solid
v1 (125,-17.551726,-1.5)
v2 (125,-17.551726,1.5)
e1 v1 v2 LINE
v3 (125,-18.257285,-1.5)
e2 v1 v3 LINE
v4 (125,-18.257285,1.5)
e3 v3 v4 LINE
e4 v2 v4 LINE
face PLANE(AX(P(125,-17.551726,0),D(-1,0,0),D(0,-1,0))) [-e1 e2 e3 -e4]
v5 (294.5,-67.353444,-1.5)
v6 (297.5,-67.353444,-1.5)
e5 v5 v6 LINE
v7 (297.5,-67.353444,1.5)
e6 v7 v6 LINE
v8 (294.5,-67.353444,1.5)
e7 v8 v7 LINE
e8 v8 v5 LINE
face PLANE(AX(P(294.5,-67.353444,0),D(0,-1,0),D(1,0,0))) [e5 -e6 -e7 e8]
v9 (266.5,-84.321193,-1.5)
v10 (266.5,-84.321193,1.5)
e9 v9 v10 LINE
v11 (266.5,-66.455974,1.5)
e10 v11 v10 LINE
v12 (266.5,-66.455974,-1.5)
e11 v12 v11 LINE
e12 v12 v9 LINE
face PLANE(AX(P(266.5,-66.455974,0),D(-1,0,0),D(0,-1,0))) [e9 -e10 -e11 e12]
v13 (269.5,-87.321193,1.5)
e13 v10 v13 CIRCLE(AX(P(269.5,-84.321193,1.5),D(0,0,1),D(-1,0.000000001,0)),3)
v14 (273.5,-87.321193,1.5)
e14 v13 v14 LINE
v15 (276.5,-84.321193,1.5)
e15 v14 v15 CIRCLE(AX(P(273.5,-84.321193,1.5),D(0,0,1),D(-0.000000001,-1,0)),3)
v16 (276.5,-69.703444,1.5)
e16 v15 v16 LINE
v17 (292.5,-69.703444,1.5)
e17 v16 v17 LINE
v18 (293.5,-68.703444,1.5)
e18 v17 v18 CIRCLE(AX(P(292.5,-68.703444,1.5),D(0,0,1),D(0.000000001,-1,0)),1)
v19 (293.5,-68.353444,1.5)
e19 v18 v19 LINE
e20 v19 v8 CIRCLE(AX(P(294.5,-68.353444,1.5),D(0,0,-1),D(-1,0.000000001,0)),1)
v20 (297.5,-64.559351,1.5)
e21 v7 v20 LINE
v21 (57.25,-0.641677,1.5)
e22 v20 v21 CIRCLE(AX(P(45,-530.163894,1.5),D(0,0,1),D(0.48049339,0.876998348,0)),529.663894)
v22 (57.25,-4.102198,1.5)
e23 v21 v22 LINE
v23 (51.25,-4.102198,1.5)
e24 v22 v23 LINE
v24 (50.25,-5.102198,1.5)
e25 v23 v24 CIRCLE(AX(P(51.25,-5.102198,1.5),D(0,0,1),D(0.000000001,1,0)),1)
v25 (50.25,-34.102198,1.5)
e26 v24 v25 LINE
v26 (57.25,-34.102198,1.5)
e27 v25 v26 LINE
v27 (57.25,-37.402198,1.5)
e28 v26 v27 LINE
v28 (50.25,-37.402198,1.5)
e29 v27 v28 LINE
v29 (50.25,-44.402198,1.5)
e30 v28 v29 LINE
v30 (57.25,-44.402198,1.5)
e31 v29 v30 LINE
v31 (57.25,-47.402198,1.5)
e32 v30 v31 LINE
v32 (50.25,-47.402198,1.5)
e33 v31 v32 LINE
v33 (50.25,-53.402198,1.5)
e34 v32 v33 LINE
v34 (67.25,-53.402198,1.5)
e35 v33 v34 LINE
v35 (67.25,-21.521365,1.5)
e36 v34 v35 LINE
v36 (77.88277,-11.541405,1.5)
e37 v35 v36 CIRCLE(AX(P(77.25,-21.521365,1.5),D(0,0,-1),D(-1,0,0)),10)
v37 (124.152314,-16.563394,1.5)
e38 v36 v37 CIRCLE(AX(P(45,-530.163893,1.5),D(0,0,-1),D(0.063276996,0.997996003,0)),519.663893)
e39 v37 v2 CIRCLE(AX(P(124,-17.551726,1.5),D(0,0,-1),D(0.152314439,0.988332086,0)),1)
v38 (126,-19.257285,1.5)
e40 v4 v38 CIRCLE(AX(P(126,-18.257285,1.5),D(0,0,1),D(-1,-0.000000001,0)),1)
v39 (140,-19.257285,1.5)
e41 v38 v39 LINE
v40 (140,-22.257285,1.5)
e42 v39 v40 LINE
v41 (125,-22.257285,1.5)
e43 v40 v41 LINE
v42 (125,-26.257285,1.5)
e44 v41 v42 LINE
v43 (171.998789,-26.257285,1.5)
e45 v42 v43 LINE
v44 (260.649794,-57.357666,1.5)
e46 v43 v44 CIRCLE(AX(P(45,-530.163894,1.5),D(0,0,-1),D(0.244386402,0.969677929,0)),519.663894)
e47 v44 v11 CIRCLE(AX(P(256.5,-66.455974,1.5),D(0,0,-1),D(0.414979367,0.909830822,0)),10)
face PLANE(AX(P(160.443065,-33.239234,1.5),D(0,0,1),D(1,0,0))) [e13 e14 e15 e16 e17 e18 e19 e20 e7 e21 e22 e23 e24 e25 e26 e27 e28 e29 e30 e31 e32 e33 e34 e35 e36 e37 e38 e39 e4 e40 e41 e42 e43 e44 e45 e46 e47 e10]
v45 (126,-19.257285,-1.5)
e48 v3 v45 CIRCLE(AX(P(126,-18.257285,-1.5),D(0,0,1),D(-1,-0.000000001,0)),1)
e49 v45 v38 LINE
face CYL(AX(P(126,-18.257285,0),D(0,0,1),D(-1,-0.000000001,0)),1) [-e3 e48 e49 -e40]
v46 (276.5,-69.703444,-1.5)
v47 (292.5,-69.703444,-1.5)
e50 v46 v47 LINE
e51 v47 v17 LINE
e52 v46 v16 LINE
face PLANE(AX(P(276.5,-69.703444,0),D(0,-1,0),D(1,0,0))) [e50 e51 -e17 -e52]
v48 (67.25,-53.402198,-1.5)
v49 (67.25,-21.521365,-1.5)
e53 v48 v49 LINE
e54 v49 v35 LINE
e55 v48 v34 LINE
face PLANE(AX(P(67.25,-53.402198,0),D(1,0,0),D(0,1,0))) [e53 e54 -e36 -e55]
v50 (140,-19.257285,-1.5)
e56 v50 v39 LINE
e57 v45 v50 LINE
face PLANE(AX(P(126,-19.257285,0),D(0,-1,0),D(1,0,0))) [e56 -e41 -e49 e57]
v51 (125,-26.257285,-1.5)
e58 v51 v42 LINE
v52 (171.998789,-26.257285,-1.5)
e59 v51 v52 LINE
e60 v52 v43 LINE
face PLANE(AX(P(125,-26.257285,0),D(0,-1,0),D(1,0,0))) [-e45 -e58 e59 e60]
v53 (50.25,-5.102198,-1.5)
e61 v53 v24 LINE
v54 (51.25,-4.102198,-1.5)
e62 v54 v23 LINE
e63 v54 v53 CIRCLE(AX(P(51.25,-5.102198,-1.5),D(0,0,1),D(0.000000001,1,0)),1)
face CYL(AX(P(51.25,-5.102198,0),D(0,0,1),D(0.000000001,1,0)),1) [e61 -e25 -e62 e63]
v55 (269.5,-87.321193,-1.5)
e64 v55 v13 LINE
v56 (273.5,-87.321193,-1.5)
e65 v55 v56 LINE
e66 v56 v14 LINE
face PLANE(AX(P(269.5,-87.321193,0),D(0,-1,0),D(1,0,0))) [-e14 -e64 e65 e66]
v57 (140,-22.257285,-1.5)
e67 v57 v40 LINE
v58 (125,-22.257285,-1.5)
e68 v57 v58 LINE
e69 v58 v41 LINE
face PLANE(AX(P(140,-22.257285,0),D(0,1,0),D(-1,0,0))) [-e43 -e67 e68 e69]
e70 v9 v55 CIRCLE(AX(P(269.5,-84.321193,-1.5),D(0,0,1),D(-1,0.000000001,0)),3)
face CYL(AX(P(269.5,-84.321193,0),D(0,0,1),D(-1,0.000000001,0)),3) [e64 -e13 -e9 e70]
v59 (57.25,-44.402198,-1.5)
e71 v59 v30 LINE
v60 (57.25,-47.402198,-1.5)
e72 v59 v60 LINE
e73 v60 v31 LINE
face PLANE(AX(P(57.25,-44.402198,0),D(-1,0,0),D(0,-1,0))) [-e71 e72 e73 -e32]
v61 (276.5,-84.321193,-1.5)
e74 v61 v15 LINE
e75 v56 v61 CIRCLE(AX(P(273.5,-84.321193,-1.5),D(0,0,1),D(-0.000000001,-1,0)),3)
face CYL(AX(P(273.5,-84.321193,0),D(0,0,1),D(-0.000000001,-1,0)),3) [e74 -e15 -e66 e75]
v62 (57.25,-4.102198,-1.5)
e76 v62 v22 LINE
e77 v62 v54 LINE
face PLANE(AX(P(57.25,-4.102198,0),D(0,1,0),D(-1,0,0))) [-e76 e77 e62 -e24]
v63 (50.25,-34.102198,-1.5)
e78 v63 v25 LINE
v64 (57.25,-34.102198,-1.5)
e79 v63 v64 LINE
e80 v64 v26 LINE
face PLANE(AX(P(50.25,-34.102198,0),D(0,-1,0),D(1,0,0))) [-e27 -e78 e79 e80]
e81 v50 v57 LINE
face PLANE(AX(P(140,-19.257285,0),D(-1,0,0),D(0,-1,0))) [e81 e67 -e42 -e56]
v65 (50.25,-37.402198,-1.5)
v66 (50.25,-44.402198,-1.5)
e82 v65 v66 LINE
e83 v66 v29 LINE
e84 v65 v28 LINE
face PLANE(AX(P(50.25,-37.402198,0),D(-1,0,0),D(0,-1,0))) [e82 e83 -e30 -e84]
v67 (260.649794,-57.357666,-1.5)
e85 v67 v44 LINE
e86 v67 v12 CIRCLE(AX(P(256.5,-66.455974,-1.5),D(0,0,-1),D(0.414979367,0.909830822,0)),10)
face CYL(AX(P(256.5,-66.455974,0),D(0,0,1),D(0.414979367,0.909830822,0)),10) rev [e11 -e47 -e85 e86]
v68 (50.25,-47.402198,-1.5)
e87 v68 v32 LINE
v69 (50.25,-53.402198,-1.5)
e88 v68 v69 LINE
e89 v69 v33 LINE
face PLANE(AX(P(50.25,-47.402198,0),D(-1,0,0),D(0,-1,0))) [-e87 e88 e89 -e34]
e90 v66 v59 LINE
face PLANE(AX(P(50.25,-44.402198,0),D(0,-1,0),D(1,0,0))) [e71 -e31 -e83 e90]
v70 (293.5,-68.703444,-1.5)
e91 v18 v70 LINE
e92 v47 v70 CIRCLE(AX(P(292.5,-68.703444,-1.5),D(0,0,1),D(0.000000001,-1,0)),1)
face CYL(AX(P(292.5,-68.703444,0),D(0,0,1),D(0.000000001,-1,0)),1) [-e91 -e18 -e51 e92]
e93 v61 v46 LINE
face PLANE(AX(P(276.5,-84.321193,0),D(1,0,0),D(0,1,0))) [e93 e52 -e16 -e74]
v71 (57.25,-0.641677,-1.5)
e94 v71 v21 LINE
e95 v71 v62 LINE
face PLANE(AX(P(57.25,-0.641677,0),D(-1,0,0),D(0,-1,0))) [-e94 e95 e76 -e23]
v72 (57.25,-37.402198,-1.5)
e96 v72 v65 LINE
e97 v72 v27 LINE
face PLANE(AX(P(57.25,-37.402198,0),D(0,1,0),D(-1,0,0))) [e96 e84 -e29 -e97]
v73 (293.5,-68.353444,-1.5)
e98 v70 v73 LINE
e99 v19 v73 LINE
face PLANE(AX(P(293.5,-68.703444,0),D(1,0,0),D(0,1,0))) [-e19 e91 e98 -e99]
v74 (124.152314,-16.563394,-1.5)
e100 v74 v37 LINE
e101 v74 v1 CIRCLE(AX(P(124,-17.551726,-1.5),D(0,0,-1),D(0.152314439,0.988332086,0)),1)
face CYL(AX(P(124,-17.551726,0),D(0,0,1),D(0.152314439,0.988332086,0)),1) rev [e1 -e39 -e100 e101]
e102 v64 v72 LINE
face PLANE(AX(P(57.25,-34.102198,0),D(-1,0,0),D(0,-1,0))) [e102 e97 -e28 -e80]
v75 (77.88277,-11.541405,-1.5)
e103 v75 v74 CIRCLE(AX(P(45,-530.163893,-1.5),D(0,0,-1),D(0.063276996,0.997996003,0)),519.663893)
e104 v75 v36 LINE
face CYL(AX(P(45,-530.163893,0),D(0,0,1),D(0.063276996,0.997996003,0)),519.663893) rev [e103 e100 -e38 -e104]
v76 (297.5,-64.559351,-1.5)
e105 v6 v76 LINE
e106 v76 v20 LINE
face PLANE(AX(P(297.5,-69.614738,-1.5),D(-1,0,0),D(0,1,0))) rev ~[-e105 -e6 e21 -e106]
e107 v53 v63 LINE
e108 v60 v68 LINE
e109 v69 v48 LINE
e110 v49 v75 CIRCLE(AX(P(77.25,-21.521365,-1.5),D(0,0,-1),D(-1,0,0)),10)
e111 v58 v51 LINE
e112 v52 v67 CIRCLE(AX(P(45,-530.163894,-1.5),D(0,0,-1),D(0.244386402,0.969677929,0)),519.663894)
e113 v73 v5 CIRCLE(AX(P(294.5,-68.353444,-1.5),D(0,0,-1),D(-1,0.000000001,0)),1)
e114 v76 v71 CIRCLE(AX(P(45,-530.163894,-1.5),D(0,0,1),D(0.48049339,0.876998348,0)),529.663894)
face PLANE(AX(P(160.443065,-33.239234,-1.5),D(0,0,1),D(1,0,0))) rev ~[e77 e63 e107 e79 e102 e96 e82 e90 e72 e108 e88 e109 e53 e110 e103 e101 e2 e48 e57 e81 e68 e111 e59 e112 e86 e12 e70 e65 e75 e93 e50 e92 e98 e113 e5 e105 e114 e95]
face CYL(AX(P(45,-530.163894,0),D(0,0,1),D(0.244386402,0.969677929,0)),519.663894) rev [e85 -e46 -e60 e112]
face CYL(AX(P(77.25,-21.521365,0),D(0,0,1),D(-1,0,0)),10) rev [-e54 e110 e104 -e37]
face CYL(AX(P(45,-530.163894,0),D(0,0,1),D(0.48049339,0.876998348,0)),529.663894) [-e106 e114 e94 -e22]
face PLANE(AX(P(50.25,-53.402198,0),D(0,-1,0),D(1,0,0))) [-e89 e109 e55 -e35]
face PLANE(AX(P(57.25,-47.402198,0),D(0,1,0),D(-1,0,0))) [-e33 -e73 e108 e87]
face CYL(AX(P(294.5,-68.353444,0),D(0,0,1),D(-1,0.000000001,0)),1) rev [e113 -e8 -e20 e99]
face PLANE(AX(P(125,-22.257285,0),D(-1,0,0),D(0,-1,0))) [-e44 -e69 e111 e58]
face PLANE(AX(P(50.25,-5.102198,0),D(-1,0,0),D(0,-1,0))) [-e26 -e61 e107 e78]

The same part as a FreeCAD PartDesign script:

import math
import FreeCAD as App
import Part
import Sketcher

V = App.Vector

doc = App.newDocument("Part")
body = doc.addObject("PartDesign::Body", "Body")

# Sketch on XY plane
sketch1 = body.newObject("Sketcher::SketchObject", "Sketch")
sketch1.AttachmentSupport = (doc.getObject("XY_Plane"), [""])
sketch1.MapMode = "FlatFace"
sketch1.addGeometry([
    Part.LineSegment(V(294.5, -67.353444, 0), V(299.5, -67.353444, 0)),  # 0
    Part.LineSegment(V(299.5, -67.353444, 0), V(299.5, -65.649534, 0)),  # 1
    Part.ArcOfCircle(Part.Circle(V(45, -530.163894, 0), V(0, 0, 1), 529.663894), math.radians(61.282369), math.radians(88.674752)),  # 2
    Part.LineSegment(V(57.25, -0.641677, 0), V(57.25, -4.102198, 0)),  # 3
    Part.LineSegment(V(57.25, -4.102198, 0), V(51.25, -4.102198, 0)),  # 4
    Part.ArcOfCircle(Part.Circle(V(51.25, -5.102198, 0), V(0, 0, 1), 1), math.radians(90), math.radians(180)),  # 5
    Part.LineSegment(V(50.25, -5.102198, 0), V(50.25, -34.102198, 0)),  # 6
    Part.LineSegment(V(50.25, -34.102198, 0), V(57.25, -34.102198, 0)),  # 7
    Part.LineSegment(V(57.25, -34.102198, 0), V(57.25, -37.402198, 0)),  # 8
    Part.LineSegment(V(57.25, -37.402198, 0), V(50.25, -37.402198, 0)),  # 9
    Part.LineSegment(V(50.25, -37.402198, 0), V(50.25, -44.402198, 0)),  # 10
    Part.LineSegment(V(50.25, -44.402198, 0), V(57.25, -44.402198, 0)),  # 11
    Part.LineSegment(V(57.25, -44.402198, 0), V(57.25, -47.402198, 0)),  # 12
    Part.LineSegment(V(57.25, -47.402198, 0), V(50.25, -47.402198, 0)),  # 13
    Part.LineSegment(V(50.25, -47.402198, 0), V(50.25, -53.402198, 0)),  # 14
    Part.LineSegment(V(50.25, -53.402198, 0), V(67.25, -53.402198, 0)),  # 15
    Part.LineSegment(V(67.25, -53.402198, 0), V(67.25, -21.521365, 0)),  # 16
    Part.ArcOfCircle(Part.Circle(V(77.25, -21.521365, 0), V(0, 0, 1), 10), math.radians(86.372071), math.radians(180)),  # 17
    Part.ArcOfCircle(Part.Circle(V(45, -530.163893, 0), V(0, 0, 1), 519.663893), math.radians(81.238924), math.radians(86.372071)),  # 18
    Part.ArcOfCircle(Part.Circle(V(124, -17.551726, 0), V(0, 0, 1), 1), math.radians(0), math.radians(81.238924)),  # 19
    Part.LineSegment(V(125, -17.551726, 0), V(125, -18.257285, 0)),  # 20
    Part.ArcOfCircle(Part.Circle(V(126, -18.257285, 0), V(0, 0, 1), 1), math.radians(-180), math.radians(-90)),  # 21
    Part.LineSegment(V(126, -19.257285, 0), V(140, -19.257285, 0)),  # 22
    Part.LineSegment(V(140, -19.257285, 0), V(140, -22.257285, 0)),  # 23
    Part.LineSegment(V(140, -22.257285, 0), V(125, -22.257285, 0)),  # 24
    Part.LineSegment(V(125, -22.257285, 0), V(125, -26.257285, 0)),  # 25
    Part.LineSegment(V(125, -26.257285, 0), V(171.998789, -26.257285, 0)),  # 26
    Part.ArcOfCircle(Part.Circle(V(45, -530.163894, 0), V(0, 0, 1), 519.663894), math.radians(65.481983), math.radians(75.854425)),  # 27
    Part.ArcOfCircle(Part.Circle(V(256.5, -66.455974, 0), V(0, 0, 1), 10), math.radians(0), math.radians(65.481983)),  # 28
    Part.LineSegment(V(266.5, -66.455974, 0), V(266.5, -84.321193, 0)),  # 29
    Part.ArcOfCircle(Part.Circle(V(269.5, -84.321193, 0), V(0, 0, 1), 3), math.radians(180), math.radians(270)),  # 30
    Part.LineSegment(V(269.5, -87.321193, 0), V(273.5, -87.321193, 0)),  # 31
    Part.ArcOfCircle(Part.Circle(V(273.5, -84.321193, 0), V(0, 0, 1), 3), math.radians(-90), math.radians(0)),  # 32
    Part.LineSegment(V(276.5, -84.321193, 0), V(276.5, -69.703444, 0)),  # 33
    Part.LineSegment(V(276.5, -69.703444, 0), V(292.5, -69.703444, 0)),  # 34
    Part.ArcOfCircle(Part.Circle(V(292.5, -68.703444, 0), V(0, 0, 1), 1), math.radians(-90), math.radians(0)),  # 35
    Part.LineSegment(V(293.5, -68.703444, 0), V(293.5, -68.353444, 0)),  # 36
    Part.ArcOfCircle(Part.Circle(V(294.5, -68.353444, 0), V(0, 0, 1), 1), math.radians(90), math.radians(180)),  # 37
], False)
sketch1.addConstraint([
    Sketcher.Constraint("Coincident", 0, 2, 1, 1),
    Sketcher.Constraint("Coincident", 1, 2, 2, 1),
    Sketcher.Constraint("Coincident", 2, 2, 3, 1),
    Sketcher.Constraint("Coincident", 3, 2, 4, 1),
    Sketcher.Constraint("Tangent", 4, 2, 5, 1),
    Sketcher.Constraint("Tangent", 5, 2, 6, 1),
    Sketcher.Constraint("Coincident", 6, 2, 7, 1),
    Sketcher.Constraint("Coincident", 7, 2, 8, 1),
    Sketcher.Constraint("Coincident", 8, 2, 9, 1),
    Sketcher.Constraint("Coincident", 9, 2, 10, 1),
    Sketcher.Constraint("Coincident", 10, 2, 11, 1),
    Sketcher.Constraint("Coincident", 11, 2, 12, 1),
    Sketcher.Constraint("Coincident", 12, 2, 13, 1),
    Sketcher.Constraint("Coincident", 13, 2, 14, 1),
    Sketcher.Constraint("Coincident", 14, 2, 15, 1),
    Sketcher.Constraint("Coincident", 15, 2, 16, 1),
    Sketcher.Constraint("Tangent", 16, 2, 17, 2),
    Sketcher.Constraint("Tangent", 17, 1, 18, 2),
    Sketcher.Constraint("Tangent", 18, 1, 19, 2),
    Sketcher.Constraint("Tangent", 19, 1, 20, 1),
    Sketcher.Constraint("Tangent", 20, 2, 21, 1),
    Sketcher.Constraint("Tangent", 21, 2, 22, 1),
    Sketcher.Constraint("Coincident", 22, 2, 23, 1),
    Sketcher.Constraint("Coincident", 23, 2, 24, 1),
    Sketcher.Constraint("Coincident", 24, 2, 25, 1),
    Sketcher.Constraint("Coincident", 25, 2, 26, 1),
    Sketcher.Constraint("Coincident", 26, 2, 27, 2),
    Sketcher.Constraint("Tangent", 27, 1, 28, 2),
    Sketcher.Constraint("Tangent", 28, 1, 29, 1),
    Sketcher.Constraint("Tangent", 29, 2, 30, 1),
    Sketcher.Constraint("Tangent", 30, 2, 31, 1),
    Sketcher.Constraint("Tangent", 31, 2, 32, 1),
    Sketcher.Constraint("Tangent", 32, 2, 33, 1),
    Sketcher.Constraint("Coincident", 33, 2, 34, 1),
    Sketcher.Constraint("Tangent", 34, 2, 35, 1),
    Sketcher.Constraint("Tangent", 35, 2, 36, 1),
    Sketcher.Constraint("Tangent", 36, 2, 37, 2),
    Sketcher.Constraint("Tangent", 37, 1, 0, 1),
    Sketcher.Constraint("Horizontal", 0),
    Sketcher.Constraint("Vertical", 1),
    Sketcher.Constraint("Vertical", 3),
    Sketcher.Constraint("Horizontal", 4),
    Sketcher.Constraint("Vertical", 6),
    Sketcher.Constraint("Horizontal", 7),
    Sketcher.Constraint("Vertical", 8),
    Sketcher.Constraint("Horizontal", 9),
    Sketcher.Constraint("Vertical", 10),
    Sketcher.Constraint("Horizontal", 11),
    Sketcher.Constraint("Vertical", 12),
    Sketcher.Constraint("Horizontal", 13),
    Sketcher.Constraint("Vertical", 14),
    Sketcher.Constraint("Horizontal", 15),
    Sketcher.Constraint("Vertical", 16),
    Sketcher.Constraint("Vertical", 20),
    Sketcher.Constraint("Horizontal", 22),
    Sketcher.Constraint("Vertical", 23),
    Sketcher.Constraint("Horizontal", 24),
    Sketcher.Constraint("Vertical", 25),
    Sketcher.Constraint("Horizontal", 26),
    Sketcher.Constraint("Vertical", 29),
    Sketcher.Constraint("Horizontal", 31),
    Sketcher.Constraint("Vertical", 33),
    Sketcher.Constraint("Horizontal", 34),
    Sketcher.Constraint("Vertical", 36),
    Sketcher.Constraint("Coincident", 18, 3, 2, 3),
    Sketcher.Constraint("Coincident", 27, 3, 2, 3),
    Sketcher.Constraint("Equal", 5, 19),
    Sketcher.Constraint("Equal", 19, 21),
    Sketcher.Constraint("Equal", 18, 27),
    Sketcher.Constraint("Equal", 17, 28),
    Sketcher.Constraint("Equal", 30, 32),
    Sketcher.Constraint("Equal", 21, 35),
    Sketcher.Constraint("Equal", 35, 37),
    Sketcher.Constraint("Vertical", 3, 2, 7, 2),
    Sketcher.Constraint("Vertical", 6, 2, 9, 2),
    Sketcher.Constraint("Vertical", 8, 2, 11, 2),
    Sketcher.Constraint("Vertical", 10, 2, 13, 2),
    Sketcher.Constraint("Vertical", 20, 2, 24, 2),
    Sketcher.Constraint("Equal", 13, 10),
    Sketcher.Constraint("Equal", 4, 14),
    Sketcher.Constraint("Equal", 12, 23),
    Sketcher.Constraint("Equal", 31, 25),
    Sketcher.Constraint("Radius", 5, 1.0),
    Sketcher.Constraint("Radius", 17, 10.0),
    Sketcher.Constraint("Radius", 30, 3.0),
    Sketcher.Constraint("DistanceX", 0, 1, 0, 2, 5.0),
    Sketcher.Constraint("DistanceX", 4, 2, 4, 1, 6.0),
    Sketcher.Constraint("DistanceX", 15, 1, 15, 2, 17.0),
    Sketcher.Constraint("DistanceX", 22, 1, 22, 2, 14.0),
    Sketcher.Constraint("DistanceX", 31, 1, 31, 2, 4.0),
    Sketcher.Constraint("DistanceX", 34, 1, 34, 2, 16.0),
    Sketcher.Constraint("DistanceY", 6, 2, 6, 1, 29.0),
    Sketcher.Constraint("DistanceY", 12, 2, 12, 1, 3.0),
    Sketcher.Constraint("DistanceY", 8, 2, 8, 1, 3.3),
    Sketcher.Constraint("DistanceX", -1, 1, 2, 3, 45.0),
    Sketcher.Constraint("DistanceX", -1, 1, 19, 3, 124.0),
    Sketcher.Constraint("DistanceY", 36, 1, 36, 2, 0.35),
    Sketcher.Constraint("DistanceX", -1, 1, 28, 3, 256.5),
    Sketcher.Constraint("DistanceX", -1, 1, 5, 3, 51.25),
    Sketcher.Constraint("Radius", 2, 529.663894),
    Sketcher.Constraint("Radius", 18, 519.663893),
    Sketcher.Constraint("DistanceX", 26, 1, 26, 2, 46.998789),
    Sketcher.Constraint("DistanceY", 1, 1, 1, 2, 1.70391),
    Sketcher.Constraint("DistanceY", 3, 2, 3, 1, 3.460521),
    Sketcher.Constraint("DistanceY", 29, 2, 29, 1, 17.865219),
    Sketcher.Constraint("DistanceY", 5, 3, -1, 1, 5.102198),
])
pad1 = body.newObject("PartDesign::Pad", "Pad")
pad1.Profile = sketch1
pad1.Length = 3
pad1.Midplane = True

# Sketch on XY plane
sketch2 = body.newObject("Sketcher::SketchObject", "Sketch001")
sketch2.AttachmentSupport = (doc.getObject("XY_Plane"), [""])
sketch2.MapMode = "FlatFace"
sketch2.AttachmentOffset = App.Placement(V(0, 0, -1.5), App.Rotation())
sketch2.addGeometry([
    Part.LineSegment(V(297.5, -62.595718, 0), V(297.5, -69.614738, 0)),
    Part.LineSegment(V(297.5, -69.614738, 0), V(299.5, -69.614738, 0)),
    Part.LineSegment(V(299.5, -69.614738, 0), V(299.5, -62.595718, 0)),
    Part.LineSegment(V(299.5, -62.595718, 0), V(297.5, -62.595718, 0)),
], False)
sketch2.addConstraint([
    Sketcher.Constraint("Coincident", 0, 2, 1, 1),
    Sketcher.Constraint("Coincident", 1, 2, 2, 1),
    Sketcher.Constraint("Coincident", 2, 2, 3, 1),
    Sketcher.Constraint("Coincident", 3, 2, 0, 1),
    Sketcher.Constraint("Vertical", 0),
    Sketcher.Constraint("Horizontal", 1),
    Sketcher.Constraint("Vertical", 2),
    Sketcher.Constraint("Horizontal", 3),
    Sketcher.Constraint("DistanceX", 1, 1, 1, 2, 2.0),
    Sketcher.Constraint("DistanceX", -1, 1, 0, 2, 297.5),
    Sketcher.Constraint("DistanceY", 0, 2, 0, 1, 7.01902),
    Sketcher.Constraint("DistanceY", 0, 2, -1, 1, 69.614738),
])
pocket1 = body.newObject("PartDesign::Pocket", "Pocket")
pocket1.Profile = sketch2
pocket1.Length = 3
pocket1.Reversed = True

doc.recompute()
